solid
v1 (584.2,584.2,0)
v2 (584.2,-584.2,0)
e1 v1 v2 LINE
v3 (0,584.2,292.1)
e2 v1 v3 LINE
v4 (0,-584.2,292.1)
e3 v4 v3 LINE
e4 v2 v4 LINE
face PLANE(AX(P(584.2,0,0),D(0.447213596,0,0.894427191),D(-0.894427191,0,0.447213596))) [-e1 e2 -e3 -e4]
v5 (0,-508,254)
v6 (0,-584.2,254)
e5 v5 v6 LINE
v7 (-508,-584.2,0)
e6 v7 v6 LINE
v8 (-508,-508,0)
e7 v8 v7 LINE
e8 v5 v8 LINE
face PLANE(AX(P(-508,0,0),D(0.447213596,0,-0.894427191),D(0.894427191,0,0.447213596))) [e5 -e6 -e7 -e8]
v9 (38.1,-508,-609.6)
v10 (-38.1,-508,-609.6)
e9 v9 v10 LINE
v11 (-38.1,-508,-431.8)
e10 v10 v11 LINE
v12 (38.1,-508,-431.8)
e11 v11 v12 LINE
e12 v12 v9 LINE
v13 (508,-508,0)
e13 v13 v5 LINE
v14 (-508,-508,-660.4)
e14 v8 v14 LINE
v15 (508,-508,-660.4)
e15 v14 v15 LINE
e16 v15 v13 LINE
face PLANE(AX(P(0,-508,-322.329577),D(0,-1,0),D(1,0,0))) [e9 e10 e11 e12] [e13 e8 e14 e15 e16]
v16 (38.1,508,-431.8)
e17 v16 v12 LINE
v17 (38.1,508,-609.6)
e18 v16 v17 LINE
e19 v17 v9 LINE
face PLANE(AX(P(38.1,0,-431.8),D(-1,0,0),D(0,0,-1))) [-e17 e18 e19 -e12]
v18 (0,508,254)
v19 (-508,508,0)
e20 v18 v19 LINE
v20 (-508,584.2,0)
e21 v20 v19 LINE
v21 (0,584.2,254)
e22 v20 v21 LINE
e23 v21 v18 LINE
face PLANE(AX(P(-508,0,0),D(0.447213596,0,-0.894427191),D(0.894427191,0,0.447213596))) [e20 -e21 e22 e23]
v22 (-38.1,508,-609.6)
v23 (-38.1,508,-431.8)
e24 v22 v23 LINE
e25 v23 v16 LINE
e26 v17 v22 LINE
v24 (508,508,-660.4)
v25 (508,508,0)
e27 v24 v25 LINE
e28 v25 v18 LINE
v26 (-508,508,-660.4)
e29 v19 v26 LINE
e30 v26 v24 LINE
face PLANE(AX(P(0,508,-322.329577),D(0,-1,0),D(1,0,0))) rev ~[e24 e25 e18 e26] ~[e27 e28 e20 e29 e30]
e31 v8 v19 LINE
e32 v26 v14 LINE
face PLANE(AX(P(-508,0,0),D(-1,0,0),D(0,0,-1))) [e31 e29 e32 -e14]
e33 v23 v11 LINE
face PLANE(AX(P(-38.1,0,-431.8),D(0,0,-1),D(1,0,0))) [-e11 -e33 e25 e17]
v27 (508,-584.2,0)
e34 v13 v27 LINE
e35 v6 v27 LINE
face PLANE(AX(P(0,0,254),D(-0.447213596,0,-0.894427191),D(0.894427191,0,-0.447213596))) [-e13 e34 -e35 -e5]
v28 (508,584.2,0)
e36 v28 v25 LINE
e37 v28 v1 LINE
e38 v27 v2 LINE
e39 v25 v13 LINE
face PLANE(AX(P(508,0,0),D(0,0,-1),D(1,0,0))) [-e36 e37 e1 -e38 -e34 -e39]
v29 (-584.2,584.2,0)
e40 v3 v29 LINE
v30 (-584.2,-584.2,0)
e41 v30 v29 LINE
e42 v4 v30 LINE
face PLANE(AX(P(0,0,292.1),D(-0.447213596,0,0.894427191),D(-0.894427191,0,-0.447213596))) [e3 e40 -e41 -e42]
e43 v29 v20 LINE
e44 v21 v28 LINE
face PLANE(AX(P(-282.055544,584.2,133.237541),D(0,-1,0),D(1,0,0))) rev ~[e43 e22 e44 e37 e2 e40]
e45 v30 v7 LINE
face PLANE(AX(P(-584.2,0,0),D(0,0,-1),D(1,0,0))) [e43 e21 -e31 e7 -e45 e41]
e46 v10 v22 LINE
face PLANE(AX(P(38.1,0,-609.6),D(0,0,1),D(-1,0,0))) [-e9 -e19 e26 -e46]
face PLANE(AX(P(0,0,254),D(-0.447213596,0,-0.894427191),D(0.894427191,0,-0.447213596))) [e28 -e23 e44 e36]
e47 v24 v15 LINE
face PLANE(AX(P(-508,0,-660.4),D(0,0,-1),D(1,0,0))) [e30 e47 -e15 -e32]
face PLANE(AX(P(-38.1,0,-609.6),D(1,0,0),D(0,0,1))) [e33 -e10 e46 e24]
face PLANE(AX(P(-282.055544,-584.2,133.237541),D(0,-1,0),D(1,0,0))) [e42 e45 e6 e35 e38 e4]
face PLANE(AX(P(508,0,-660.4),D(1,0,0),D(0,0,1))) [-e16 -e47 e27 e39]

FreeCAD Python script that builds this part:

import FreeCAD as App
import Part
import Sketcher

V = App.Vector
Q = App.Units.Quantity


def add_polygon(sketch, points):
    """Adds a closed chain of lines whose ends are joined by coincident constraints."""
    first, n = sketch.GeometryCount, len(points)
    for a, b in zip(points, points[1:] + points[:1]):
        sketch.addGeometry(Part.LineSegment(App.Vector(*a, 0), App.Vector(*b, 0)), False)
    for i in range(n):
        sketch.addConstraint(Sketcher.Constraint("Coincident", first + i, 2, first + (i + 1) % n, 1))

doc = App.newDocument("Part")
body = doc.addObject("PartDesign::Body", "Body")

# Sketch on XZ plane
sketch1 = doc.addObject("Sketcher::SketchObject", "Sketch")
body.addObject(sketch1)
sketch1.AttachmentSupport = (doc.XZ_Plane, [""])
sketch1.MapMode = "FlatFace"
add_polygon(sketch1, [(-584, 0), (-508, 0), (0, 254), (508, 0), (584, 0), (0, 292)])  # lines 0-5
sketch1.addConstraint(Sketcher.Constraint("Horizontal", 0))
sketch1.addConstraint(Sketcher.Constraint("Horizontal", 3))
sketch1.addConstraint(Sketcher.Constraint("Symmetric", 0, 2, 2, 2, -1, 1))
sketch1.addConstraint(Sketcher.Constraint("Symmetric", 3, 2, 5, 2, -2))
sketch1.addConstraint(Sketcher.Constraint("PointOnObject", 1, 2, -2))
sketch1.addConstraint(Sketcher.Constraint("PointOnObject", 4, 2, -2))
sketch1.addConstraint(Sketcher.Constraint("Parallel", 2, 4))
sketch1.addConstraint(Sketcher.Constraint("DistanceX", 0, 1, 0, 2, Q("3 in")))
sketch1.addConstraint(Sketcher.Constraint("DistanceX", 0, 2, -1, 1, Q("20 in")))
sketch1.addConstraint(Sketcher.Constraint("DistanceY", -1, 1, 1, 2, Q("10 in")))
pad1 = doc.addObject("PartDesign::Pad", "Pad")
body.addObject(pad1)
pad1.Profile = sketch1
pad1.Length = Q("46 in")
pad1.Midplane = True

# Sketch on XZ plane
sketch2 = doc.addObject("Sketcher::SketchObject", "Sketch001")
body.addObject(sketch2)
sketch2.AttachmentSupport = (doc.XZ_Plane, [""])
sketch2.MapMode = "FlatFace"
add_polygon(sketch2, [(-508, 0), (-508, -660), (508, -660), (508, 0), (584, 0), (0, 292), (-584, 0)])  # lines 0-6
add_polygon(sketch2, [(-38, -610), (-38, -432), (38, -432), (38, -610)])  # lines 7-10
sketch2.addConstraint(Sketcher.Constraint("Vertical", 0))
sketch2.addConstraint(Sketcher.Constraint("Horizontal", 1))
sketch2.addConstraint(Sketcher.Constraint("Vertical", 2))
sketch2.addConstraint(Sketcher.Constraint("Horizontal", 3))
sketch2.addConstraint(Sketcher.Constraint("Horizontal", 6))
sketch2.addConstraint(Sketcher.Constraint("Vertical", 7))
sketch2.addConstraint(Sketcher.Constraint("Horizontal", 8))
sketch2.addConstraint(Sketcher.Constraint("Vertical", 9))
sketch2.addConstraint(Sketcher.Constraint("Horizontal", 10))
sketch2.addConstraint(Sketcher.Constraint("Symmetric", 3, 2, 5, 2, -1, 1))
sketch2.addConstraint(Sketcher.Constraint("Symmetric", 2, 2, 6, 2, -2))
sketch2.addConstraint(Sketcher.Constraint("PointOnObject", 4, 2, -2))
sketch2.addConstraint(Sketcher.Constraint("Equal", 6, 8))
sketch2.addConstraint(Sketcher.Constraint("DistanceX", 1, 1, 1, 2, Q("40 in")))
sketch2.addConstraint(Sketcher.Constraint("DistanceX", 3, 1, 3, 2, Q("3 in")))
sketch2.addConstraint(Sketcher.Constraint("DistanceY", 0, 2, 0, 1, Q("26 in")))
sketch2.addConstraint(Sketcher.Constraint("DistanceY", 7, 1, 7, 2, Q("7 in")))
sketch2.addConstraint(Sketcher.Constraint("DistanceY", 7, 2, -1, 1, Q("17 in")))
sketch2.addConstraint(Sketcher.Constraint("DistanceY", -1, 1, 4, 2, Q("11.5 in")))
sketch2.addConstraint(Sketcher.Constraint("DistanceX", 7, 2, -1, 1, Q("1.5 in")))
pad2 = doc.addObject("PartDesign::Pad", "Pad001")
body.addObject(pad2)
pad2.Profile = sketch2
pad2.Length = Q("40 in")
pad2.Midplane = True

doc.recompute()
